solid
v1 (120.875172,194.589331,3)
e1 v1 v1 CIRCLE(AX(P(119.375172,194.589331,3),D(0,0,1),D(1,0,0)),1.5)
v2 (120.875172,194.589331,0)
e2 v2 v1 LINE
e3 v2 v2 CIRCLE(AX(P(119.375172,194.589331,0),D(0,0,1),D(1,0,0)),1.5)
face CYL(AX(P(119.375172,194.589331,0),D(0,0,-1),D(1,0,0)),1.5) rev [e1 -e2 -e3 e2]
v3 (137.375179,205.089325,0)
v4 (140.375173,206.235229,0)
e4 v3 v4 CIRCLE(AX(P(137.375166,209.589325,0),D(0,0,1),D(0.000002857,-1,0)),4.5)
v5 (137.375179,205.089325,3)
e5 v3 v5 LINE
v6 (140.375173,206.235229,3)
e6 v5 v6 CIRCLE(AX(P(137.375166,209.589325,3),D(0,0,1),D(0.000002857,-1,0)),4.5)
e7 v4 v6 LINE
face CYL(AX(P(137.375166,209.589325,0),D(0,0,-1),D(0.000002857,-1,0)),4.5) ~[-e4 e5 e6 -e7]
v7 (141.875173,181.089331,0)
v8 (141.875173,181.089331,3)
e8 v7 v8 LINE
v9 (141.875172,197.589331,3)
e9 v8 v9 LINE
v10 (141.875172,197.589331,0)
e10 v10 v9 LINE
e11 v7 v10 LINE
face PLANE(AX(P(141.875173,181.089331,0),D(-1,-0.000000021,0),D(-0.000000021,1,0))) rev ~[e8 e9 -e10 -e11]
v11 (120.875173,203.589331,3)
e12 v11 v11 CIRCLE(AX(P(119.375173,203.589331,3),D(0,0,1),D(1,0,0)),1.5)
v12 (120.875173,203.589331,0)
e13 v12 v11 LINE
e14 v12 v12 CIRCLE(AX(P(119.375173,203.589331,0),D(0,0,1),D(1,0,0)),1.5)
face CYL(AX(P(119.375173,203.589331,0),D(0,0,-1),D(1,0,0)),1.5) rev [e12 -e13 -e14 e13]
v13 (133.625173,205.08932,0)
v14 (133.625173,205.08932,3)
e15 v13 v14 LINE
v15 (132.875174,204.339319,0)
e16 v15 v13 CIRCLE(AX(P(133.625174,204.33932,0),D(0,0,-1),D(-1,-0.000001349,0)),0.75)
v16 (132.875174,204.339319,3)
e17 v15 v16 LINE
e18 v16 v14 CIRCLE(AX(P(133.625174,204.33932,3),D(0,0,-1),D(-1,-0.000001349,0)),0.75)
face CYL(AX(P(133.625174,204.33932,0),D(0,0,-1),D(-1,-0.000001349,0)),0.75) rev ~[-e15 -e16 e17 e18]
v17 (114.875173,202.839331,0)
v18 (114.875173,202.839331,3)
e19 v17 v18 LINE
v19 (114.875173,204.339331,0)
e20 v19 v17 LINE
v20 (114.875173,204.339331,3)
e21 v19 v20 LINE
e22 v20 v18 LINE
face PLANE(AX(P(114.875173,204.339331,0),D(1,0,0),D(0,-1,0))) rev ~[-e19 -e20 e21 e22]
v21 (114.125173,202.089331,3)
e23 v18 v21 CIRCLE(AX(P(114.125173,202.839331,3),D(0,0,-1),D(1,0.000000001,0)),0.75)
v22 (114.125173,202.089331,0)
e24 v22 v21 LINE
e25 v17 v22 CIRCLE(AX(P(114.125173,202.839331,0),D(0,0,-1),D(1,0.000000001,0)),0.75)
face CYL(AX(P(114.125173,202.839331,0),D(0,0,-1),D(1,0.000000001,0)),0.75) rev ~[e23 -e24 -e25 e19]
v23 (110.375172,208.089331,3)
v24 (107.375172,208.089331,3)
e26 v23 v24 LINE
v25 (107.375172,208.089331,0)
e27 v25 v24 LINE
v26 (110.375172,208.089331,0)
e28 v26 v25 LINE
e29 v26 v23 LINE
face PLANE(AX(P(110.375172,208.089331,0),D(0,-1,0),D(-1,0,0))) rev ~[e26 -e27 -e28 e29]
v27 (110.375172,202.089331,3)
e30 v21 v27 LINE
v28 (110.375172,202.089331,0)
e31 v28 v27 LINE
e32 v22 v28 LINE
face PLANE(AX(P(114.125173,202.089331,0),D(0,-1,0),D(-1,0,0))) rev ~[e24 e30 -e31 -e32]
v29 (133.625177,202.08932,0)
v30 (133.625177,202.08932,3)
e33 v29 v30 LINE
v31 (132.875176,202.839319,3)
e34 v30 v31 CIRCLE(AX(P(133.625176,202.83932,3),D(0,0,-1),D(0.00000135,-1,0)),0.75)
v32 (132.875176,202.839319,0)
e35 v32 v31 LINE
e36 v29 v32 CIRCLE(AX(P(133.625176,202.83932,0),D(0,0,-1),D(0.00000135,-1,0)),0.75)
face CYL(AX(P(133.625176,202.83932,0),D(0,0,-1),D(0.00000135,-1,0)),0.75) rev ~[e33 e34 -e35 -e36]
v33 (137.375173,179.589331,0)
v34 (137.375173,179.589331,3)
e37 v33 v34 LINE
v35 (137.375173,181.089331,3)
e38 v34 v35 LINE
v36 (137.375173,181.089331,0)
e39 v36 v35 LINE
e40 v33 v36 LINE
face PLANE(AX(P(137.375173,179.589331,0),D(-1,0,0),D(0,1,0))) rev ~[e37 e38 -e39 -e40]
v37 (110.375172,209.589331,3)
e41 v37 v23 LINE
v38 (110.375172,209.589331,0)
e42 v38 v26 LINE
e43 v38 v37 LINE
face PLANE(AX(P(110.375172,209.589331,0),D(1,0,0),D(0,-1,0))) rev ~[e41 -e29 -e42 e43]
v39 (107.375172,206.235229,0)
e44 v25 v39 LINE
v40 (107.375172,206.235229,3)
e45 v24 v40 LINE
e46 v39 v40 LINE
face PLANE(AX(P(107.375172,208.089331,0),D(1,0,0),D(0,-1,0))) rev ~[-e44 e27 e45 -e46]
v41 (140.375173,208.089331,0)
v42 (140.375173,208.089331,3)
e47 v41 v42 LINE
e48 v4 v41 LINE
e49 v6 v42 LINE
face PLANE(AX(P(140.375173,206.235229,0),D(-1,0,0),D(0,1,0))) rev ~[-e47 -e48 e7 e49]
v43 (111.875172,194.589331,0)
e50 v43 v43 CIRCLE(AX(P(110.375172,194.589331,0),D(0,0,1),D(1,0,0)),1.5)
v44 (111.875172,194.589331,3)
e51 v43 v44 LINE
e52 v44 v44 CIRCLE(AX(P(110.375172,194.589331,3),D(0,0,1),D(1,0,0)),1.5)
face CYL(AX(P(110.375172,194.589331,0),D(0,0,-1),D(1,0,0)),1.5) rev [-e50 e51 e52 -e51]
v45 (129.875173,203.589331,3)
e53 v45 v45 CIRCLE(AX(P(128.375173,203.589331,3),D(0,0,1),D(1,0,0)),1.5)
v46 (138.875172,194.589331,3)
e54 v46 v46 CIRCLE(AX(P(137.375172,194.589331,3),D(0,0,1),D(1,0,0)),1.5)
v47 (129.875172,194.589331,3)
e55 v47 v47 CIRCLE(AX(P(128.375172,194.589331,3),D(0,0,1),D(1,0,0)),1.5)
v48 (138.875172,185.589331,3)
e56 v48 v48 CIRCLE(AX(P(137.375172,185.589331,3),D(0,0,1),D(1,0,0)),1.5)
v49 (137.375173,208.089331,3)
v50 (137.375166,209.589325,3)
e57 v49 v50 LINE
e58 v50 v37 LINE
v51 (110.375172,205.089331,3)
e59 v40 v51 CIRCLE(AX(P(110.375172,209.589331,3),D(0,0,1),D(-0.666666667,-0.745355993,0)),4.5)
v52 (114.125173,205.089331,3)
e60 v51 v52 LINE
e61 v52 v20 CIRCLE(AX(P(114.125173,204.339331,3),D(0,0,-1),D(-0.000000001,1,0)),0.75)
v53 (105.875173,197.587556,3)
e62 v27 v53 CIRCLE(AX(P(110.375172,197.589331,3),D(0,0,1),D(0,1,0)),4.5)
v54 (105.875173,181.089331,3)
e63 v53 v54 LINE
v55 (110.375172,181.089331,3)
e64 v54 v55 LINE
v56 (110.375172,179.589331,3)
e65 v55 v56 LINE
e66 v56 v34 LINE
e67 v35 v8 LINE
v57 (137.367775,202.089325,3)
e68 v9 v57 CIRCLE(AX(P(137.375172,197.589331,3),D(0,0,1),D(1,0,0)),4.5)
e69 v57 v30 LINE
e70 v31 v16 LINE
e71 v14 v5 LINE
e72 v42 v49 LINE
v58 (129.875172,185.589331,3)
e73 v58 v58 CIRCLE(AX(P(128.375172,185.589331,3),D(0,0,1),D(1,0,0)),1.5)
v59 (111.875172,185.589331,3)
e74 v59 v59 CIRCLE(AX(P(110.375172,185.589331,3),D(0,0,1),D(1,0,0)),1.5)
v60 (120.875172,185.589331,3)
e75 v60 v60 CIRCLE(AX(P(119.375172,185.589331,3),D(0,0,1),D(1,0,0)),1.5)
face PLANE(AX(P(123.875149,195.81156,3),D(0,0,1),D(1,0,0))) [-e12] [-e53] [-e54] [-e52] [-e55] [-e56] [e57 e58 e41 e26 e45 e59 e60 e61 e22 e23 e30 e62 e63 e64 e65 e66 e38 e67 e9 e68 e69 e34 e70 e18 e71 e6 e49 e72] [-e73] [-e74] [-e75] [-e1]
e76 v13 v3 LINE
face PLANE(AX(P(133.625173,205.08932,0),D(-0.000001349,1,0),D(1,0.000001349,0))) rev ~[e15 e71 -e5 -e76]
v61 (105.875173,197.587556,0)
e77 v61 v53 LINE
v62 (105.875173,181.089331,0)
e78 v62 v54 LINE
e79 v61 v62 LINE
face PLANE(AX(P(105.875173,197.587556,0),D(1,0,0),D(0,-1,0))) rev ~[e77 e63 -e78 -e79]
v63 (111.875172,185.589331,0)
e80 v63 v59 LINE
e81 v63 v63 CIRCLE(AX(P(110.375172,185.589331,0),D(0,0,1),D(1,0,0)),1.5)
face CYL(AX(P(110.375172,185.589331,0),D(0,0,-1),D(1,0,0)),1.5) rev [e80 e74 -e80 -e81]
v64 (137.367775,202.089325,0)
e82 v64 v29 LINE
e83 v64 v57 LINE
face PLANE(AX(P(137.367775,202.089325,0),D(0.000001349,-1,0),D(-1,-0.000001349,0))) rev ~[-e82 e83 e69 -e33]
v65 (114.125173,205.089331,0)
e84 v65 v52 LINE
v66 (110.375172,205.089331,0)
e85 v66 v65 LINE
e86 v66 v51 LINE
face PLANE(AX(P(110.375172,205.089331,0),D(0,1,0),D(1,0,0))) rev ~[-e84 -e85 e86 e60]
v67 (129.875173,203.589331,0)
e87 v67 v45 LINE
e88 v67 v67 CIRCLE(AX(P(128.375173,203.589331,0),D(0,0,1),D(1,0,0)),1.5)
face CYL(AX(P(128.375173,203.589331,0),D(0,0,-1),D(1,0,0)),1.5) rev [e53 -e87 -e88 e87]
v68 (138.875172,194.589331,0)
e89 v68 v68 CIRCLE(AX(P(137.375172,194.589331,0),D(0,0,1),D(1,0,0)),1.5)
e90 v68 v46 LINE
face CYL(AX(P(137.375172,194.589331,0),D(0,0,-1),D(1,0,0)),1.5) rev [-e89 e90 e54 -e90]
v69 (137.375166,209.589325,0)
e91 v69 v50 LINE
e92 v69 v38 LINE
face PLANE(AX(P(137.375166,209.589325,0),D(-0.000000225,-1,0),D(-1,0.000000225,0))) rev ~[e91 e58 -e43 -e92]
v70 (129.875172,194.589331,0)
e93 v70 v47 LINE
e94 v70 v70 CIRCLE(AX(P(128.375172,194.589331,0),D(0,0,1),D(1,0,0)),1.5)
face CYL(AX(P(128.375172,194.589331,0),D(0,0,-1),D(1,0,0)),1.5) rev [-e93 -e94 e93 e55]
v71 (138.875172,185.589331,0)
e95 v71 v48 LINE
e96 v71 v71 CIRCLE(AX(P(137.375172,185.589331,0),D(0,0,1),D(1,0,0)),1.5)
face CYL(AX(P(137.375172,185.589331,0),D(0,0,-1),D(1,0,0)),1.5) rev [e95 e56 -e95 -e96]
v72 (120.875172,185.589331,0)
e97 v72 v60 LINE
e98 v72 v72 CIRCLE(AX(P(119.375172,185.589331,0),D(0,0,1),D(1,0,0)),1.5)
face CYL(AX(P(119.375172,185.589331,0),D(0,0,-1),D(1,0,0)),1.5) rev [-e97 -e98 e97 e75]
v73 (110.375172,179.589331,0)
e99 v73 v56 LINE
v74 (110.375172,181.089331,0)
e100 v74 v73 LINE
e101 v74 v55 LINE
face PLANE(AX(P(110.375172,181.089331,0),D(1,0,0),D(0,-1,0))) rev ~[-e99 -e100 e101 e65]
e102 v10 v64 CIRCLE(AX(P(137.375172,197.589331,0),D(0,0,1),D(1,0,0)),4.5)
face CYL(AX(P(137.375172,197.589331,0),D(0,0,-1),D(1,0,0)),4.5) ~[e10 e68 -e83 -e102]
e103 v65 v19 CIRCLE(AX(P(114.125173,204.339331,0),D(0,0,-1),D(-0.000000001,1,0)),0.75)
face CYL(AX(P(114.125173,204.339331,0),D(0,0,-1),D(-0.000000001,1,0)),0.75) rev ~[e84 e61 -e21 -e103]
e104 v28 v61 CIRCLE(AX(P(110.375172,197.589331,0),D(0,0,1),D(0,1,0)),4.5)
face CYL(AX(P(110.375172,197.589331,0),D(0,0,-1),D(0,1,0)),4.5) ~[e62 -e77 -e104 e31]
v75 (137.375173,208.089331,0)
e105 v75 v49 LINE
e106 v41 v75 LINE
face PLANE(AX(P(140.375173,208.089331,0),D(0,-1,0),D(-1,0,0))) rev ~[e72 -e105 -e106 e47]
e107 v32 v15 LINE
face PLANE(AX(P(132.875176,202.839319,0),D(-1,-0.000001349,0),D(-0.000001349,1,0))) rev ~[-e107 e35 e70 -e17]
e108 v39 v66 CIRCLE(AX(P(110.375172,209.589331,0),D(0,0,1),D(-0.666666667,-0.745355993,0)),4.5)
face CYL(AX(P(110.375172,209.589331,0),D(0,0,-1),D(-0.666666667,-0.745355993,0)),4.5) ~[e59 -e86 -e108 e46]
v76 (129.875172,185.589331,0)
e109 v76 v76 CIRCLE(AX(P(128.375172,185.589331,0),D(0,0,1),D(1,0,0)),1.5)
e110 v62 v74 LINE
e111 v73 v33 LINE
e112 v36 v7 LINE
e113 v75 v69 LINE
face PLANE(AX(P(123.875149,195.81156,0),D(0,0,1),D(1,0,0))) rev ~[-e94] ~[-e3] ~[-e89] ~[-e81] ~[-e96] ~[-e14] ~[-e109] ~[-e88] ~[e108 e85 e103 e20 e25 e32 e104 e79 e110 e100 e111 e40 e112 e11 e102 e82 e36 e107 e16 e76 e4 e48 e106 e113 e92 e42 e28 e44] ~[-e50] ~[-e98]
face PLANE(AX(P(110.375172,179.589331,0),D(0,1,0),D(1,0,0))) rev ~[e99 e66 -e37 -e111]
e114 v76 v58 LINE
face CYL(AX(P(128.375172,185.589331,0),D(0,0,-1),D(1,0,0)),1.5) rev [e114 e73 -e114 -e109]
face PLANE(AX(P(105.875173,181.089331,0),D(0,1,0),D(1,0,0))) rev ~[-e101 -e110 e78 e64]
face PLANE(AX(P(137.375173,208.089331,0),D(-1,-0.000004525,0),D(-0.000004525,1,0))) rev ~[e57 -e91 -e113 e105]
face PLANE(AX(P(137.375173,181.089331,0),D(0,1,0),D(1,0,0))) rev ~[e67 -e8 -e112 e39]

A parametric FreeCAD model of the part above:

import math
import FreeCAD as App
import Part
import Sketcher

V = App.Vector
Q = App.Units.Quantity

doc = App.newDocument("Part")
params = doc.addObject("Spreadsheet::Sheet", "Params")
for row, (alias, value) in enumerate([
    ("sketch1_diameter", "3 mm"),
    ("sketch1_radius", "4.5 mm"),
    ("sketch1_width", "3 mm"),
    ("sketch1_width2", "27 mm"),
    ("sketch1_radius2", "0.75 mm"),
    ("pad1_length", "3 mm"),
], start=1):
    params.set(f"A{row}", alias)
    params.set(f"B{row}", "=" + value)
    params.setAlias(f"B{row}", alias)

body = doc.addObject("PartDesign::Body", "Body")

sketch1 = body.newObject("Sketcher::SketchObject", "Sketch")
sketch1.AttachmentSupport = (doc.getObject("XY_Plane"), [""])
sketch1.MapMode = "FlatFace"
sketch1.addGeometry([
    Part.LineSegment(V(110.4, 209.6, 0), V(110.4, 208.1, 0)),
    Part.LineSegment(V(110.4, 208.1, 0), V(107.4, 208.1, 0)),
    Part.LineSegment(V(107.4, 208.1, 0), V(107.4, 206.2, 0)),
    Part.ArcOfCircle(Part.Circle(V(110.4, 209.6, 0), V(0, 0, 1), 4.5), math.radians(-132), math.radians(-90)),
    Part.LineSegment(V(110.4, 205.1, 0), V(114.1, 205.1, 0)),
    Part.ArcOfCircle(Part.Circle(V(114.1, 204.3, 0), V(0, 0, 1), 0.8), math.radians(0), math.radians(90)),
    Part.LineSegment(V(114.9, 204.3, 0), V(114.9, 202.8, 0)),
    Part.ArcOfCircle(Part.Circle(V(114.1, 202.8, 0), V(0, 0, 1), 0.8), math.radians(-90), math.radians(0)),
    Part.LineSegment(V(114.1, 202.1, 0), V(110.4, 202.1, 0)),
    Part.ArcOfCircle(Part.Circle(V(110.4, 197.6, 0), V(0, 0, 1), 4.5), math.radians(90), math.radians(180)),
    Part.LineSegment(V(105.9, 197.6, 0), V(105.9, 181.1, 0)),
    Part.LineSegment(V(105.9, 181.1, 0), V(110.4, 181.1, 0)),
    Part.LineSegment(V(110.4, 181.1, 0), V(110.4, 179.6, 0)),
    Part.LineSegment(V(110.4, 179.6, 0), V(137.4, 179.6, 0)),
    Part.LineSegment(V(137.4, 179.6, 0), V(137.4, 181.1, 0)),
    Part.LineSegment(V(137.4, 181.1, 0), V(141.9, 181.1, 0)),
    Part.LineSegment(V(141.9, 181.1, 0), V(141.9, 197.6, 0)),
    Part.ArcOfCircle(Part.Circle(V(137.4, 197.6, 0), V(0, 0, 1), 4.5), math.radians(0), math.radians(90)),
    Part.LineSegment(V(137.4, 202.1, 0), V(133.6, 202.1, 0)),
    Part.ArcOfCircle(Part.Circle(V(133.6, 202.8, 0), V(0, 0, 1), 0.8), math.radians(-180), math.radians(-90)),
    Part.LineSegment(V(132.9, 202.8, 0), V(132.9, 204.3, 0)),
    Part.ArcOfCircle(Part.Circle(V(133.6, 204.3, 0), V(0, 0, 1), 0.8), math.radians(90), math.radians(180)),
    Part.LineSegment(V(133.6, 205.1, 0), V(137.4, 205.1, 0)),
    Part.ArcOfCircle(Part.Circle(V(137.4, 209.6, 0), V(0, 0, 1), 4.5), math.radians(-90), math.radians(-48)),
    Part.LineSegment(V(140.4, 206.2, 0), V(140.4, 208.1, 0)),
    Part.LineSegment(V(140.4, 208.1, 0), V(137.4, 208.1, 0)),
    Part.LineSegment(V(137.4, 208.1, 0), V(137.4, 209.6, 0)),
    Part.LineSegment(V(137.4, 209.6, 0), V(110.4, 209.6, 0)),
    Part.Circle(V(110.4, 185.6, 0), V(0, 0, 1), 1.5),
    Part.Circle(V(119.4, 185.6, 0), V(0, 0, 1), 1.5),
    Part.Circle(V(128.4, 185.6, 0), V(0, 0, 1), 1.5),
    Part.Circle(V(137.4, 185.6, 0), V(0, 0, 1), 1.5),
    Part.Circle(V(110.4, 194.6, 0), V(0, 0, 1), 1.5),
    Part.Circle(V(119.4, 194.6, 0), V(0, 0, 1), 1.5),
    Part.Circle(V(119.4, 203.6, 0), V(0, 0, 1), 1.5),
    Part.Circle(V(128.4, 194.6, 0), V(0, 0, 1), 1.5),
    Part.Circle(V(137.4, 194.6, 0), V(0, 0, 1), 1.5),
    Part.Circle(V(128.4, 203.6, 0), V(0, 0, 1), 1.5),
], False)
sketch1.addConstraint([
    Sketcher.Constraint("Coincident", 0, 2, 1, 1),
    Sketcher.Constraint("Coincident", 1, 2, 2, 1),
    Sketcher.Constraint("Coincident", 2, 2, 3, 1),
    Sketcher.Constraint("Tangent", 3, 2, 4, 1),
    Sketcher.Constraint("Tangent", 4, 2, 5, 2),
    Sketcher.Constraint("Tangent", 5, 1, 6, 1),
    Sketcher.Constraint("Tangent", 6, 2, 7, 2),
    Sketcher.Constraint("Tangent", 7, 1, 8, 1),
    Sketcher.Constraint("Tangent", 8, 2, 9, 1),
    Sketcher.Constraint("Coincident", 9, 2, 10, 1),
    Sketcher.Constraint("Coincident", 10, 2, 11, 1),
    Sketcher.Constraint("Coincident", 11, 2, 12, 1),
    Sketcher.Constraint("Coincident", 12, 2, 13, 1),
    Sketcher.Constraint("Coincident", 13, 2, 14, 1),
    Sketcher.Constraint("Coincident", 14, 2, 15, 1),
    Sketcher.Constraint("Coincident", 15, 2, 16, 1),
    Sketcher.Constraint("Tangent", 16, 2, 17, 1),
    Sketcher.Constraint("Coincident", 17, 2, 18, 1),
    Sketcher.Constraint("Tangent", 18, 2, 19, 2),
    Sketcher.Constraint("Tangent", 19, 1, 20, 1),
    Sketcher.Constraint("Tangent", 20, 2, 21, 2),
    Sketcher.Constraint("Tangent", 21, 1, 22, 1),
    Sketcher.Constraint("Tangent", 22, 2, 23, 1),
    Sketcher.Constraint("Coincident", 23, 2, 24, 1),
    Sketcher.Constraint("Coincident", 24, 2, 25, 1),
    Sketcher.Constraint("Coincident", 25, 2, 26, 1),
    Sketcher.Constraint("Coincident", 26, 2, 27, 1),
    Sketcher.Constraint("Coincident", 27, 2, 0, 1),
    Sketcher.Constraint("Vertical", 0),
    Sketcher.Constraint("Horizontal", 1),
    Sketcher.Constraint("Vertical", 2),
    Sketcher.Constraint("Horizontal", 4),
    Sketcher.Constraint("Vertical", 6),
    Sketcher.Constraint("Horizontal", 8),
    Sketcher.Constraint("Vertical", 10),
    Sketcher.Constraint("Horizontal", 11),
    Sketcher.Constraint("Vertical", 12),
    Sketcher.Constraint("Horizontal", 13),
    Sketcher.Constraint("Vertical", 14),
    Sketcher.Constraint("Horizontal", 15),
    Sketcher.Constraint("Vertical", 16),
    Sketcher.Constraint("Vertical", 24),
    Sketcher.Constraint("Horizontal", 25),
    Sketcher.Constraint("Coincident", 26, 2, 23, 3),
    Sketcher.Constraint("Coincident", 27, 2, 3, 3),
    Sketcher.Constraint("Equal", 5, 7),
    Sketcher.Constraint("Equal", 3, 9),
    Sketcher.Constraint("Equal", 9, 17),
    Sketcher.Constraint("Equal", 7, 19),
    Sketcher.Constraint("Equal", 19, 21),
    Sketcher.Constraint("Equal", 17, 23),
    Sketcher.Constraint("Equal", 28, 29),
    Sketcher.Constraint("Equal", 29, 30),
    Sketcher.Constraint("Equal", 30, 31),
    Sketcher.Constraint("Equal", 31, 32),
    Sketcher.Constraint("Equal", 32, 33),
    Sketcher.Constraint("Equal", 33, 34),
    Sketcher.Constraint("Equal", 34, 35),
    Sketcher.Constraint("Equal", 35, 36),
    Sketcher.Constraint("Equal", 36, 37),
    Sketcher.Constraint("Perpendicular", 18, 20),
    Sketcher.Constraint("Perpendicular", 20, 22),
    Sketcher.Constraint("Parallel", 22, 27),
    Sketcher.Constraint("Horizontal", 9, 3, 17, 3),
    Sketcher.Constraint("Horizontal", 28, 3, 29, 3),
    Sketcher.Constraint("Horizontal", 29, 3, 30, 3),
    Sketcher.Constraint("Horizontal", 30, 3, 31, 3),
    Sketcher.Constraint("Horizontal", 32, 3, 33, 3),
    Sketcher.Constraint("Horizontal", 33, 3, 35, 3),
    Sketcher.Constraint("Horizontal", 35, 3, 36, 3),
    Sketcher.Constraint("Horizontal", 34, 3, 37, 3),
    Sketcher.Constraint("Horizontal", 11, 2, 14, 2),
    Sketcher.Constraint("Horizontal", 21, 3, 20, 2),
    Sketcher.Constraint("Horizontal", 2, 2, 23, 2),
    Sketcher.Constraint("Horizontal", 1, 2, 24, 2),
    Sketcher.Constraint("Vertical", 3, 3, 9, 3),
    Sketcher.Constraint("Vertical", 9, 3, 28, 3),
    Sketcher.Constraint("Vertical", 17, 3, 31, 3),
    Sketcher.Constraint("Vertical", 28, 3, 32, 3),
    Sketcher.Constraint("Vertical", 29, 3, 33, 3),
    Sketcher.Constraint("Vertical", 33, 3, 34, 3),
    Sketcher.Constraint("Vertical", 30, 3, 35, 3),
    Sketcher.Constraint("Vertical", 31, 3, 36, 3),
    Sketcher.Constraint("Vertical", 35, 3, 37, 3),
    Sketcher.Constraint("Vertical", 8, 2, 11, 2),
    Sketcher.Constraint("Vertical", 36, 3, 13, 2),
    Sketcher.Constraint("Vertical", 14, 2, 25, 2),
    Sketcher.Constraint("Equal", 1, 25),
    Sketcher.Constraint("Equal", 0, 6),
    Sketcher.Constraint("Equal", 6, 12),
    Sketcher.Constraint("Diameter", 28, Q("3 mm")),
    Sketcher.Constraint("Radius", 3, Q("4.5 mm")),
    Sketcher.Constraint("DistanceX", 1, 2, 1, 1, Q("3 mm")),
    Sketcher.Constraint("DistanceX", 13, 1, 13, 2, Q("27 mm")),
    Sketcher.Constraint("Radius", 5, Q("0.75 mm")),
    Sketcher.Constraint("DistanceY", 0, 2, 0, 1, Q("1.5 mm")),
    Sketcher.Constraint("DistanceY", 16, 1, 16, 2, Q("16.5 mm")),
    Sketcher.Constraint("DistanceY", 28, 3, 9, 3, Q("12 mm")),
    Sketcher.Constraint("DistanceX", 28, 3, 29, 3, Q("9 mm")),
    Sketcher.Constraint("DistanceX", 29, 3, 30, 3, Q("9 mm")),
    Sketcher.Constraint("DistanceY", 32, 3, 9, 3, Q("3 mm")),
    Sketcher.Constraint("DistanceY", 33, 3, 34, 3, Q("9 mm")),
    Sketcher.Constraint("DistanceX", 4, 1, 4, 2, Q("3.75 mm")),
    Sketcher.Constraint("DistanceX", 5, 3, 21, 3, Q("19.500001 mm")),
    Sketcher.Constraint("Distance", 18, Q("3.742598 mm")),
    Sketcher.Constraint("DistanceY", 10, 2, 10, 1, Q("16.498225 mm")),
    Sketcher.Constraint("DistanceY", -1, 1, 3, 3, Q("209.589331 mm")),
    Sketcher.Constraint("DistanceX", -1, 1, 22, 2, Q("137.375179 mm")),
])
sketch1.setExpression("Constraints[90]", "Params.sketch1_diameter")
sketch1.setExpression("Constraints[91]", "Params.sketch1_radius")
sketch1.setExpression("Constraints[92]", "Params.sketch1_width")
sketch1.setExpression("Constraints[93]", "Params.sketch1_width2")
sketch1.setExpression("Constraints[94]", "Params.sketch1_radius2")
pad1 = body.newObject("PartDesign::Pad", "Pad")
pad1.Profile = sketch1
pad1.setExpression("Length", "Params.pad1_length")

doc.recompute()
